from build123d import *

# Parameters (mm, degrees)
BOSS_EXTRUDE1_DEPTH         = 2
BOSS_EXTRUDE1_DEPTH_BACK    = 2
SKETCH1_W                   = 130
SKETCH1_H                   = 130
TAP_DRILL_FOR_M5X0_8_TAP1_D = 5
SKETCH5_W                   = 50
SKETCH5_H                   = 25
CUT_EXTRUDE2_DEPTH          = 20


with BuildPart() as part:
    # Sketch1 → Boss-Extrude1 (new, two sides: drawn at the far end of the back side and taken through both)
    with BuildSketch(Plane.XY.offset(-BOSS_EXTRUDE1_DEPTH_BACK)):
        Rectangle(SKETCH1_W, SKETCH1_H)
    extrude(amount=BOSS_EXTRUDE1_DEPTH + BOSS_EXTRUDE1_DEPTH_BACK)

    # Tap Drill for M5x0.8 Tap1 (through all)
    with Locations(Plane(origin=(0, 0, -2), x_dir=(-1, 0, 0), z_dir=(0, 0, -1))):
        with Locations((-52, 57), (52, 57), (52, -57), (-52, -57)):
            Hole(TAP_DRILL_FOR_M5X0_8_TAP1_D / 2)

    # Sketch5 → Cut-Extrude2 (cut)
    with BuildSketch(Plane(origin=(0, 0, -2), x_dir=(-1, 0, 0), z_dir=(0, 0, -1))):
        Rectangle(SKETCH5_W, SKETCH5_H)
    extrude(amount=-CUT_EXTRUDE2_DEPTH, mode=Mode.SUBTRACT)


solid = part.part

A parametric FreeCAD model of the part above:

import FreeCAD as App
import Part
import Sketcher
from FreeCAD import Vector

doc = App.newDocument("Part")
body = doc.addObject("PartDesign::Body", "Body")

sketch1 = body.newObject("Sketcher::SketchObject", "Sketch")
sketch1.AttachmentSupport = (doc.getObject("XY_Plane"), [""])
sketch1.MapMode = "FlatFace"
sketch1.addGeometry(Part.LineSegment(Vector(-65, 65, 0), Vector(-65, -65, 0)), False)
sketch1.addGeometry(Part.LineSegment(Vector(-65, -65, 0), Vector(65, -65, 0)), False)
sketch1.addGeometry(Part.LineSegment(Vector(65, -65, 0), Vector(65, 65, 0)), False)
sketch1.addGeometry(Part.LineSegment(Vector(65, 65, 0), Vector(-65, 65, 0)), False)
sketch1.addConstraint(Sketcher.Constraint("Coincident", 0, 2, 1, 1))
sketch1.addConstraint(Sketcher.Constraint("Coincident", 1, 2, 2, 1))
sketch1.addConstraint(Sketcher.Constraint("Coincident", 2, 2, 3, 1))
sketch1.addConstraint(Sketcher.Constraint("Coincident", 3, 2, 0, 1))
sketch1.addConstraint(Sketcher.Constraint("Vertical", 0))
sketch1.addConstraint(Sketcher.Constraint("Horizontal", 1))
sketch1.addConstraint(Sketcher.Constraint("Vertical", 2))
sketch1.addConstraint(Sketcher.Constraint("Horizontal", 3))
sketch1.addConstraint(Sketcher.Constraint("Symmetric", 0, 2, 2, 2, -1, 1))
sketch1.addConstraint(Sketcher.Constraint("Equal", 3, 0))
sketch1.addConstraint(Sketcher.Constraint("DistanceX", 1, 1, 1, 2, 130.0))
pad1 = body.newObject("PartDesign::Pad", "Pad")
pad1.Profile = sketch1
pad1.Type = "TwoLengths"
pad1.Length = 2
pad1.Length2 = 2

sketch2 = body.newObject("Sketcher::SketchObject", "Sketch001")
sketch2.AttachmentSupport = (doc.getObject("XY_Plane"), [""])
sketch2.MapMode = "FlatFace"
sketch2.AttachmentOffset = App.Placement(Vector(0, 0, -2), App.Rotation())
sketch2.addGeometry(Part.Circle(Vector(52, 57, 0), Vector(0, 0, 1), 2.5), False)
sketch2.addGeometry(Part.Circle(Vector(-52, 57, 0), Vector(0, 0, 1), 2.5), False)
sketch2.addGeometry(Part.Circle(Vector(-52, -57, 0), Vector(0, 0, 1), 2.5), False)
sketch2.addGeometry(Part.Circle(Vector(52, -57, 0), Vector(0, 0, 1), 2.5), False)
sketch2.addConstraint(Sketcher.Constraint("Equal", 0, 1))
sketch2.addConstraint(Sketcher.Constraint("Equal", 1, 2))
sketch2.addConstraint(Sketcher.Constraint("Equal", 2, 3))
sketch2.addConstraint(Sketcher.Constraint("Symmetric", 0, 3, 2, 3, -1, 1))
sketch2.addConstraint(Sketcher.Constraint("Symmetric", 1, 3, 3, 3, -1, 1))
sketch2.addConstraint(Sketcher.Constraint("Symmetric", 0, 3, 1, 3, -2))
sketch2.addConstraint(Sketcher.Constraint("Diameter", 0, 5.0))
sketch2.addConstraint(Sketcher.Constraint("DistanceX", -1, 1, 0, 3, 52.0))
sketch2.addConstraint(Sketcher.Constraint("DistanceY", -1, 1, 0, 3, 57.0))
doc.recompute()
hole = body.newObject("PartDesign::Hole", "Hole")
hole.Profile = sketch2
hole.ThreadType = "None"
hole.Diameter = 5
hole.DepthType = "ThroughAll"
hole.Reversed = True

sketch3 = body.newObject("Sketcher::SketchObject", "Sketch002")
sketch3.AttachmentSupport = (doc.getObject("XY_Plane"), [""])
sketch3.MapMode = "FlatFace"
sketch3.AttachmentOffset = App.Placement(Vector(0, 0, -2), App.Rotation())
sketch3.addGeometry(Part.LineSegment(Vector(25, 12.5, 0), Vector(25, -12.5, 0)), False)
sketch3.addGeometry(Part.LineSegment(Vector(25, -12.5, 0), Vector(-25, -12.5, 0)), False)
sketch3.addGeometry(Part.LineSegment(Vector(-25, -12.5, 0), Vector(-25, 12.5, 0)), False)
sketch3.addGeometry(Part.LineSegment(Vector(-25, 12.5, 0), Vector(25, 12.5, 0)), False)
sketch3.addConstraint(Sketcher.Constraint("Coincident", 0, 2, 1, 1))
sketch3.addConstraint(Sketcher.Constraint("Coincident", 1, 2, 2, 1))
sketch3.addConstraint(Sketcher.Constraint("Coincident", 2, 2, 3, 1))
sketch3.addConstraint(Sketcher.Constraint("Coincident", 3, 2, 0, 1))
sketch3.addConstraint(Sketcher.Constraint("Vertical", 0))
sketch3.addConstraint(Sketcher.Constraint("Horizontal", 1))
sketch3.addConstraint(Sketcher.Constraint("Vertical", 2))
sketch3.addConstraint(Sketcher.Constraint("Horizontal", 3))
sketch3.addConstraint(Sketcher.Constraint("Symmetric", 0, 2, 2, 2, -1, 1))
sketch3.addConstraint(Sketcher.Constraint("DistanceX", 1, 2, 1, 1, 50.0))
sketch3.addConstraint(Sketcher.Constraint("DistanceY", 0, 2, 0, 1, 25.0))
pocket1 = body.newObject("PartDesign::Pocket", "Pocket")
pocket1.Profile = sketch3
pocket1.Length = 20
pocket1.Reversed = True

doc.recompute()
